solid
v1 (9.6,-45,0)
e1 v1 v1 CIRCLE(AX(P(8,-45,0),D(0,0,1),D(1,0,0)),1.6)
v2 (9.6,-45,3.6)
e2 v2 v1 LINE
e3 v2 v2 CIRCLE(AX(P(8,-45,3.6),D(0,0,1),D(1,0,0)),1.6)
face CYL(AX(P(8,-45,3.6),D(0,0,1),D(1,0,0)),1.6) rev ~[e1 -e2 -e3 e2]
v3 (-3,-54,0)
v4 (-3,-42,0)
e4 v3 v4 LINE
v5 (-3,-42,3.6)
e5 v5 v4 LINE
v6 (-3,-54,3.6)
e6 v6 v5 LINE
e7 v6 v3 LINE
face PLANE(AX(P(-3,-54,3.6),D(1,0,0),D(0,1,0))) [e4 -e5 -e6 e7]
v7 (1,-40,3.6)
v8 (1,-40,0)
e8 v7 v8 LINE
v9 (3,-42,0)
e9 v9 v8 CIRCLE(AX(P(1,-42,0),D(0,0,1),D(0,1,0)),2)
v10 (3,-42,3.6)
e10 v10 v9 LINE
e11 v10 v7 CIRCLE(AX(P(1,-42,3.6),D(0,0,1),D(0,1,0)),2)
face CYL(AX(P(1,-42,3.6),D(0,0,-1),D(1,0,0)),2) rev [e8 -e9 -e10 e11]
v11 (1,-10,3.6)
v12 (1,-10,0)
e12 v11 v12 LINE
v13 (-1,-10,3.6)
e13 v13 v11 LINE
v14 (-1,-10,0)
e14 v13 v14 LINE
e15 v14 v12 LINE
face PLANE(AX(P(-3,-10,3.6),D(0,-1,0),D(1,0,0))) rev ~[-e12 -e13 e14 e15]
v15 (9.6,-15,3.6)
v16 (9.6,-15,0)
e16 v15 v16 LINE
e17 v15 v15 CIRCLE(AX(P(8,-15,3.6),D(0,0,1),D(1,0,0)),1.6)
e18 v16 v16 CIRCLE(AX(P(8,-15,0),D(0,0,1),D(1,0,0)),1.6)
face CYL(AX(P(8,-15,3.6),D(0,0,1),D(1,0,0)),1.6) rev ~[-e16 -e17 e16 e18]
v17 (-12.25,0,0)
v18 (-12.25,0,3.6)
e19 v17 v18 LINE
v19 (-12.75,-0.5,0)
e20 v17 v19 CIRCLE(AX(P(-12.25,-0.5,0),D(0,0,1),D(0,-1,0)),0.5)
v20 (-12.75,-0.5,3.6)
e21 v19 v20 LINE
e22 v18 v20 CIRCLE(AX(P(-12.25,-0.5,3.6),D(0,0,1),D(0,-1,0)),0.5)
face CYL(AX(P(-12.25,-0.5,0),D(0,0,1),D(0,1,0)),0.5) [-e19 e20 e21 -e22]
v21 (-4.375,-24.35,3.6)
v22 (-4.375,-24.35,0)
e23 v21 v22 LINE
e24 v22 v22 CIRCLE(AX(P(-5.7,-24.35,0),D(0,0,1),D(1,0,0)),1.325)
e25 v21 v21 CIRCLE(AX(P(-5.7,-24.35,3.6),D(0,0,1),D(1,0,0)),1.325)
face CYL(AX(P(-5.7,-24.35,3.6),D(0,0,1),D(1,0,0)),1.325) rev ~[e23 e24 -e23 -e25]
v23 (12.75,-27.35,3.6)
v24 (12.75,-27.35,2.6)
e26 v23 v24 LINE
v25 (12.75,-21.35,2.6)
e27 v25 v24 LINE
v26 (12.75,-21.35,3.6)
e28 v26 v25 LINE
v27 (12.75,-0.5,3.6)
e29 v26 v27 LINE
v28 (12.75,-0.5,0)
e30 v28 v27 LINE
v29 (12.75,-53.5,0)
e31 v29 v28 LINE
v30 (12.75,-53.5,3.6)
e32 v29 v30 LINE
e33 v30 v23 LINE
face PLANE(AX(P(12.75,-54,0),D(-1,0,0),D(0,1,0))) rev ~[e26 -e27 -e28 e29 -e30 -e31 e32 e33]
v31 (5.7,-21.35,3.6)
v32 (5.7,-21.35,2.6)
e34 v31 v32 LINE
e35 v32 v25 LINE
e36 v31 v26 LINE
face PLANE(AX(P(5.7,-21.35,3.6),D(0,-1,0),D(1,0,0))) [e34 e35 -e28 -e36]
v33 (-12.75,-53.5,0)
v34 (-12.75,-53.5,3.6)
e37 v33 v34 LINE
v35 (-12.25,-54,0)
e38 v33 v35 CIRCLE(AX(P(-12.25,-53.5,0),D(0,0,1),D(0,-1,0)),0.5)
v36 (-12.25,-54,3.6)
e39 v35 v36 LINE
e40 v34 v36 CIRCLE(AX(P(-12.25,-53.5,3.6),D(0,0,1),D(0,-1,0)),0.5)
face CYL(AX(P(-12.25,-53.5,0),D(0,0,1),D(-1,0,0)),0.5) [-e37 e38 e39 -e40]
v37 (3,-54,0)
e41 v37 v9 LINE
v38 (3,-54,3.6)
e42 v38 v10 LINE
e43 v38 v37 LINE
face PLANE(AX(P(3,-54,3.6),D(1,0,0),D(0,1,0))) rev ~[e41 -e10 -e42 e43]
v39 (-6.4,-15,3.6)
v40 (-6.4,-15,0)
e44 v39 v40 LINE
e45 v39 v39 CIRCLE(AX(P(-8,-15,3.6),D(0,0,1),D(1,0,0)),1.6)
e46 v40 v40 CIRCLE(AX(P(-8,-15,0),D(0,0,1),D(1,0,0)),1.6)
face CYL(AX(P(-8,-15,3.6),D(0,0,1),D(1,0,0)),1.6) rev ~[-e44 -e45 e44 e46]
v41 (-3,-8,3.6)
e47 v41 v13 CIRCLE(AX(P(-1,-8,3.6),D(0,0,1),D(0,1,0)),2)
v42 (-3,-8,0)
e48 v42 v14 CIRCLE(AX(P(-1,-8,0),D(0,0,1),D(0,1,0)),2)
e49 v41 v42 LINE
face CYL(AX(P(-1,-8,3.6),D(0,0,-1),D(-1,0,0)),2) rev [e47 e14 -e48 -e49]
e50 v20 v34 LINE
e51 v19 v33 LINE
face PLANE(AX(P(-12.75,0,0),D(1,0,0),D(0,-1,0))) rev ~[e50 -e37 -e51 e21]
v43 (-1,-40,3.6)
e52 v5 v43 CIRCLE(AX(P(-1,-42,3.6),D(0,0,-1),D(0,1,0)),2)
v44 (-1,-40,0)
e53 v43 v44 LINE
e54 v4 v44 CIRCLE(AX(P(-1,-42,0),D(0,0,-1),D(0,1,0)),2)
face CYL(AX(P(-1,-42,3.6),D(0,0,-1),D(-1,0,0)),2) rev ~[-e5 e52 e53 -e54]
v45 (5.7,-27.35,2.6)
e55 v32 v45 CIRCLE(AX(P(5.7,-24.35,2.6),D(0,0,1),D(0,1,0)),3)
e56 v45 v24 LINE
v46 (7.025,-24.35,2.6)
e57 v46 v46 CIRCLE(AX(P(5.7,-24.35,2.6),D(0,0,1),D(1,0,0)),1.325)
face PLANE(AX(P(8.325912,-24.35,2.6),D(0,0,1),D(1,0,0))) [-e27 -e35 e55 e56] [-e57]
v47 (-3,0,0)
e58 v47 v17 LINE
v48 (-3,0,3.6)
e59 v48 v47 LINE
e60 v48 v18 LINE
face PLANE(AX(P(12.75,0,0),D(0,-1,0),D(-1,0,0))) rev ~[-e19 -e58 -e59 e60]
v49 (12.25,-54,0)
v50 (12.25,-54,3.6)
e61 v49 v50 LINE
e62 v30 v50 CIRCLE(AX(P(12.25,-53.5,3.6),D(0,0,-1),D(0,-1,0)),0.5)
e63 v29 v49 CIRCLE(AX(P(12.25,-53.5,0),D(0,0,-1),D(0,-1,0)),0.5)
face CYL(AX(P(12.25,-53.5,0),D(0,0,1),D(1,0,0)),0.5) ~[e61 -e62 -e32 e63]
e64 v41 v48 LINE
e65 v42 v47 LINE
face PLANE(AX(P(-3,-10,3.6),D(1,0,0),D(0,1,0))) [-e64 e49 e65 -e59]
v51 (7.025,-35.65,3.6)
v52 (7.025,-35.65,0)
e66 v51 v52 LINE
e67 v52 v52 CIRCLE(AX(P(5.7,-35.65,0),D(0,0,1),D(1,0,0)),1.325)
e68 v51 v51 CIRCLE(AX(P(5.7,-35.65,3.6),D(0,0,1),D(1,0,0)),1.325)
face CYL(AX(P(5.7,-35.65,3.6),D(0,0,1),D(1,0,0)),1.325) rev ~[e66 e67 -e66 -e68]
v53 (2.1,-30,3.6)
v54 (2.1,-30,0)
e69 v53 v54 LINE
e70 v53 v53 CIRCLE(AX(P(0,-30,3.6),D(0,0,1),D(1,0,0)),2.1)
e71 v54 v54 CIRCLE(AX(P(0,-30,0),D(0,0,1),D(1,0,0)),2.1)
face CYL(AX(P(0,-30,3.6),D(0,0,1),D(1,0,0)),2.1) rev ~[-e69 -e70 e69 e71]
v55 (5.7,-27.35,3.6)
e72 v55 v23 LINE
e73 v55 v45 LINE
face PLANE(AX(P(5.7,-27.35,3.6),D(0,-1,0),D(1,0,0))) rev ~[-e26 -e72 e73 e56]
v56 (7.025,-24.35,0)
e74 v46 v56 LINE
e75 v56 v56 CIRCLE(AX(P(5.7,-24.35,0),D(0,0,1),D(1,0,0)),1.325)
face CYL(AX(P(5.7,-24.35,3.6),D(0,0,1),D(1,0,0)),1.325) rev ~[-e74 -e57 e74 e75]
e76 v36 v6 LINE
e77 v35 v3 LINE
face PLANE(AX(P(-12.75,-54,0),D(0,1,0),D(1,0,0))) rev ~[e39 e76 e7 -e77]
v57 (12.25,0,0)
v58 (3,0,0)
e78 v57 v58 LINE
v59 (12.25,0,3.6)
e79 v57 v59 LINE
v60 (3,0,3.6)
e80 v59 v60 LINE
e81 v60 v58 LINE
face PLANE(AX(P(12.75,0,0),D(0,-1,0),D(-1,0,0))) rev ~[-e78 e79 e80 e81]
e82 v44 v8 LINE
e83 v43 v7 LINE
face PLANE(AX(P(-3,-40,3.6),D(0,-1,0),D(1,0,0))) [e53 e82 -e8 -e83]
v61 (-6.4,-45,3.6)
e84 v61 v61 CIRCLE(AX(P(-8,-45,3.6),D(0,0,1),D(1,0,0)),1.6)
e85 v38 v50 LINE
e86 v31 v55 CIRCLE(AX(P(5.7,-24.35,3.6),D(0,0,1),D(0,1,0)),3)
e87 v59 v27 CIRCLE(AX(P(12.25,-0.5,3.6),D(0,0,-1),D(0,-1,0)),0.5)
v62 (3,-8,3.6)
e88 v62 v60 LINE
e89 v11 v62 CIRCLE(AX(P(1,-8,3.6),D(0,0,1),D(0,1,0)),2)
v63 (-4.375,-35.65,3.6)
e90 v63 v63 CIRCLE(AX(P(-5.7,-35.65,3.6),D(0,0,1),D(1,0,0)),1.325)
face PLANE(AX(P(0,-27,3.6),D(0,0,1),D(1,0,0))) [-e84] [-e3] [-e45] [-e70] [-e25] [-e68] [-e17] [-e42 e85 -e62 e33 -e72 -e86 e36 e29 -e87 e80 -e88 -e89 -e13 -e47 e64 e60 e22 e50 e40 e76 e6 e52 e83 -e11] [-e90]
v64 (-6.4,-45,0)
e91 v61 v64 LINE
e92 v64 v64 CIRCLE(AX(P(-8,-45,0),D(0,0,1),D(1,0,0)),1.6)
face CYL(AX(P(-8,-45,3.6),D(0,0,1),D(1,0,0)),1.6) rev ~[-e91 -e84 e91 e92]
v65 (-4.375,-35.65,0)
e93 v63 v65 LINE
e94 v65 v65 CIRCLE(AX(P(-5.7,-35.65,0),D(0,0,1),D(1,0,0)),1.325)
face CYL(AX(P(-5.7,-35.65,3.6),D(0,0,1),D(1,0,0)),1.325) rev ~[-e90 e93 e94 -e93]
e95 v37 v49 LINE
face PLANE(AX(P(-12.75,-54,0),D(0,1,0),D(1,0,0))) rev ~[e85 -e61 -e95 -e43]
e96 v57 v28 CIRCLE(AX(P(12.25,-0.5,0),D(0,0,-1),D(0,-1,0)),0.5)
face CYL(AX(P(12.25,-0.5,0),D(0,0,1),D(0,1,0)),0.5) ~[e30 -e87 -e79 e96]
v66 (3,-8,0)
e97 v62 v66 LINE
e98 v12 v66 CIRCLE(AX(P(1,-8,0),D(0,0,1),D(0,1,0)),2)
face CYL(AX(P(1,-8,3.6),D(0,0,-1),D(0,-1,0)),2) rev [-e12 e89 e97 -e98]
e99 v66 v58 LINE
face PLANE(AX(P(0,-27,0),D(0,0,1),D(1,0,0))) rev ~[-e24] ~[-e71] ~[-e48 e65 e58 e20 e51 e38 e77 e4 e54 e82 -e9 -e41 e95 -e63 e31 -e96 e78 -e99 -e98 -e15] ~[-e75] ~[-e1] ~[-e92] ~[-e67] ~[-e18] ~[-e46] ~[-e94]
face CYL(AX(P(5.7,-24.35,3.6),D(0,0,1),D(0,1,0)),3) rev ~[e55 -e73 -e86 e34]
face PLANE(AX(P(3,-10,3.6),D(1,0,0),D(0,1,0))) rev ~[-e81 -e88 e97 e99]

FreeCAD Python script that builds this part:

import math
import FreeCAD as App
import Part
import Sketcher


def edges_at(feature, points):
    """Names of the edges that pass closest to the given points."""
    edges = feature.Shape.Edges
    near = lambda p: min(range(len(edges)), key=lambda i: edges[i].distToShape(Part.Vertex(*p))[0])
    return sorted({f"Edge{near(p) + 1}" for p in points})

doc = App.newDocument("Part")
params = doc.addObject("Spreadsheet::Sheet", "Params")
for row, (alias, value) in enumerate([
    ("sketch1_height", "54 mm"),
    ("sketch1_width", "25.5 mm"),
    ("pad1_length", "3.6 mm"),
    ("sketch2_width", "6 mm"),
    ("sketch2_height", "14 mm"),
    ("sketch2_height2", "10 mm"),
    ("pocket1_length", "5 mm"),
    ("fillet_radius", "2 mm"),
    ("sketch3_diameter", "4.2 mm"),
    ("pocket2_length", "5 mm"),
    ("sketch4_diameter", "2.65 mm"),
    ("pocket3_length", "5 mm"),
    ("sketch5_diameter", "3.2 mm"),
    ("pocket4_length", "25 mm"),
    ("fillet2_radius", "0.5 mm"),
    ("sketch6_radius", "3 mm"),
    ("sketch6_width", "7.05 mm"),
    ("pocket5_length", "1 mm"),
], start=1):
    params.set(f"A{row}", alias)
    params.set(f"B{row}", "=" + value)
    params.setAlias(f"B{row}", alias)

body = doc.addObject("PartDesign::Body", "Body")

# Sketch on XY plane
sketch1 = doc.addObject("Sketcher::SketchObject", "Sketch")
body.addObject(sketch1)
sketch1.AttachmentSupport = (doc.XY_Plane, [""])
sketch1.MapMode = "FlatFace"
sketch1.addGeometry(Part.LineSegment(App.Vector(-12.75, 0, 0), App.Vector(-12.75, -54, 0)), False)
sketch1.addGeometry(Part.LineSegment(App.Vector(-12.75, -54, 0), App.Vector(12.75, -54, 0)), False)
sketch1.addGeometry(Part.LineSegment(App.Vector(12.75, -54, 0), App.Vector(12.75, 0, 0)), False)
sketch1.addGeometry(Part.LineSegment(App.Vector(12.75, 0, 0), App.Vector(-12.75, 0, 0)), False)
sketch1.addConstraint(Sketcher.Constraint("Coincident", 0, 2, 1, 1))
sketch1.addConstraint(Sketcher.Constraint("Coincident", 1, 2, 2, 1))
sketch1.addConstraint(Sketcher.Constraint("Coincident", 2, 2, 3, 1))
sketch1.addConstraint(Sketcher.Constraint("Coincident", 3, 2, 0, 1))
sketch1.addConstraint(Sketcher.Constraint("Vertical", 0))
sketch1.addConstraint(Sketcher.Constraint("Horizontal", 1))
sketch1.addConstraint(Sketcher.Constraint("Vertical", 2))
sketch1.addConstraint(Sketcher.Constraint("Horizontal", 3))
sketch1.addConstraint(Sketcher.Constraint("Symmetric", 2, 2, 3, 2, -1, 1))
sketch1.addConstraint(Sketcher.Constraint("DistanceY", 0, 2, 0, 1, 54.0))
sketch1.addConstraint(Sketcher.Constraint("DistanceX", 1, 1, 1, 2, 25.5))
sketch1.setExpression("Constraints[9]", "Params.sketch1_height")
sketch1.setExpression("Constraints[10]", "Params.sketch1_width")
pad1 = doc.addObject("PartDesign::Pad", "Pad")
body.addObject(pad1)
pad1.Profile = sketch1
pad1.setExpression("Length", "Params.pad1_length")

# Sketch on XY plane
sketch2 = doc.addObject("Sketcher::SketchObject", "Sketch001")
body.addObject(sketch2)
sketch2.AttachmentSupport = (doc.XY_Plane, [""])
sketch2.MapMode = "FlatFace"
sketch2.AttachmentOffset = App.Placement(App.Vector(0, 0, 3.6), App.Rotation())
sketch2.addGeometry(Part.LineSegment(App.Vector(-3, -40, 0), App.Vector(-3, -54, 0)), False)
sketch2.addGeometry(Part.LineSegment(App.Vector(-3, -54, 0), App.Vector(3, -54, 0)), False)
sketch2.addGeometry(Part.LineSegment(App.Vector(3, -54, 0), App.Vector(3, -40, 0)), False)
sketch2.addGeometry(Part.LineSegment(App.Vector(3, -40, 0), App.Vector(-3, -40, 0)), False)
sketch2.addGeometry(Part.LineSegment(App.Vector(-3, 0, 0), App.Vector(-3, -10, 0)), False)
sketch2.addGeometry(Part.LineSegment(App.Vector(-3, -10, 0), App.Vector(3, -10, 0)), False)
sketch2.addGeometry(Part.LineSegment(App.Vector(3, -10, 0), App.Vector(3, 0, 0)), False)
sketch2.addGeometry(Part.LineSegment(App.Vector(3, 0, 0), App.Vector(-3, 0, 0)), False)
sketch2.addConstraint(Sketcher.Constraint("Coincident", 0, 2, 1, 1))
sketch2.addConstraint(Sketcher.Constraint("Coincident", 1, 2, 2, 1))
sketch2.addConstraint(Sketcher.Constraint("Coincident", 2, 2, 3, 1))
sketch2.addConstraint(Sketcher.Constraint("Coincident", 3, 2, 0, 1))
sketch2.addConstraint(Sketcher.Constraint("Coincident", 4, 2, 5, 1))
sketch2.addConstraint(Sketcher.Constraint("Coincident", 5, 2, 6, 1))
sketch2.addConstraint(Sketcher.Constraint("Coincident", 6, 2, 7, 1))
sketch2.addConstraint(Sketcher.Constraint("Coincident", 7, 2, 4, 1))
sketch2.addConstraint(Sketcher.Constraint("Vertical", 0))
sketch2.addConstraint(Sketcher.Constraint("Horizontal", 1))
sketch2.addConstraint(Sketcher.Constraint("Vertical", 2))
sketch2.addConstraint(Sketcher.Constraint("Horizontal", 3))
sketch2.addConstraint(Sketcher.Constraint("Vertical", 4))
sketch2.addConstraint(Sketcher.Constraint("Horizontal", 5))
sketch2.addConstraint(Sketcher.Constraint("Vertical", 6))
sketch2.addConstraint(Sketcher.Constraint("Horizontal", 7))
sketch2.addConstraint(Sketcher.Constraint("Symmetric", 6, 2, 7, 2, -1, 1))
sketch2.addConstraint(Sketcher.Constraint("Vertical", 3, 2, 4, 2))
sketch2.addConstraint(Sketcher.Constraint("Vertical", 2, 2, 5, 2))
sketch2.addConstraint(Sketcher.Constraint("DistanceX", 1, 1, 1, 2, 6.0))
sketch2.addConstraint(Sketcher.Constraint("DistanceY", 0, 2, 0, 1, 14.0))
sketch2.addConstraint(Sketcher.Constraint("DistanceY", 4, 2, 4, 1, 10.0))
sketch2.addConstraint(Sketcher.Constraint("DistanceY", 0, 2, -1, 1, 54.0))
sketch2.setExpression("Constraints[19]", "Params.sketch2_width")
sketch2.setExpression("Constraints[20]", "Params.sketch2_height")
sketch2.setExpression("Constraints[21]", "Params.sketch2_height2")
pocket1 = doc.addObject("PartDesign::Pocket", "Pocket")
body.addObject(pocket1)
pocket1.Profile = sketch2
pocket1.setExpression("Length", "Params.pocket1_length")
doc.recompute()

fillet = doc.addObject("PartDesign::Fillet", "Fillet")
body.addObject(fillet)
fillet.Base = (pocket1, edges_at(pocket1, [
    (-3, -10, 1.8),
    (3, -10, 1.8),
    (3, -40, 1.8),
    (-3, -40, 1.8),
]))
fillet.setExpression("Radius", "Params.fillet_radius")

# Sketch on XY plane
sketch3 = doc.addObject("Sketcher::SketchObject", "Sketch002")
body.addObject(sketch3)
sketch3.AttachmentSupport = (doc.XY_Plane, [""])
sketch3.MapMode = "FlatFace"
sketch3.AttachmentOffset = App.Placement(App.Vector(0, 0, 3.6), App.Rotation())
sketch3.addGeometry(Part.Circle(App.Vector(0, -30, 0), App.Vector(0, 0, 1), 2.1), False)
sketch3.addConstraint(Sketcher.Constraint("PointOnObject", 0, 3, -2))
sketch3.addConstraint(Sketcher.Constraint("Diameter", 0, 4.2))
sketch3.addConstraint(Sketcher.Constraint("DistanceY", 0, 3, -1, 1, 30.0))
sketch3.setExpression("Constraints[1]", "Params.sketch3_diameter")
pocket2 = doc.addObject("PartDesign::Pocket", "Pocket001")
body.addObject(pocket2)
pocket2.Profile = sketch3
pocket2.setExpression("Length", "Params.pocket2_length")

# Sketch on XY plane
sketch4 = doc.addObject("Sketcher::SketchObject", "Sketch003")
body.addObject(sketch4)
sketch4.AttachmentSupport = (doc.XY_Plane, [""])
sketch4.MapMode = "FlatFace"
sketch4.AttachmentOffset = App.Placement(App.Vector(0, 0, 3.6), App.Rotation())
sketch4.addGeometry(Part.Circle(App.Vector(-5.7, -24.35, 0), App.Vector(0, 0, 1), 1.325), False)
sketch4.addGeometry(Part.Circle(App.Vector(5.7, -24.35, 0), App.Vector(0, 0, 1), 1.325), False)
sketch4.addGeometry(Part.Circle(App.Vector(5.7, -35.65, 0), App.Vector(0, 0, 1), 1.325), False)
sketch4.addGeometry(Part.Circle(App.Vector(-5.7, -35.65, 0), App.Vector(0, 0, 1), 1.325), False)
sketch4.addConstraint(Sketcher.Constraint("Equal", 0, 1))
sketch4.addConstraint(Sketcher.Constraint("Equal", 1, 2))
sketch4.addConstraint(Sketcher.Constraint("Equal", 2, 3))
sketch4.addConstraint(Sketcher.Constraint("Symmetric", 0, 3, 1, 3, -2))
sketch4.addConstraint(Sketcher.Constraint("Symmetric", 2, 3, 3, 3, -2))
sketch4.addConstraint(Sketcher.Constraint("Vertical", 1, 3, 2, 3))
sketch4.addConstraint(Sketcher.Constraint("Diameter", 0, 2.65))
sketch4.addConstraint(Sketcher.Constraint("DistanceX", 0, 3, -1, 1, 5.7))
sketch4.addConstraint(Sketcher.Constraint("DistanceY", 2, 3, 1, 3, 11.3))
sketch4.addConstraint(Sketcher.Constraint("DistanceY", 0, 3, -1, 1, 24.35))
sketch4.setExpression("Constraints[6]", "Params.sketch4_diameter")
pocket3 = doc.addObject("PartDesign::Pocket", "Pocket002")
body.addObject(pocket3)
pocket3.Profile = sketch4
pocket3.setExpression("Length", "Params.pocket3_length")

# Sketch on XY plane
sketch5 = doc.addObject("Sketcher::SketchObject", "Sketch004")
body.addObject(sketch5)
sketch5.AttachmentSupport = (doc.XY_Plane, [""])
sketch5.MapMode = "FlatFace"
sketch5.AttachmentOffset = App.Placement(App.Vector(0, 0, 3.6), App.Rotation())
sketch5.addGeometry(Part.Circle(App.Vector(-8, -15, 0), App.Vector(0, 0, 1), 1.6), False)
sketch5.addGeometry(Part.Circle(App.Vector(8, -15, 0), App.Vector(0, 0, 1), 1.6), False)
sketch5.addGeometry(Part.Circle(App.Vector(-8, -45, 0), App.Vector(0, 0, 1), 1.6), False)
sketch5.addGeometry(Part.Circle(App.Vector(8, -45, 0), App.Vector(0, 0, 1), 1.6), False)
sketch5.addConstraint(Sketcher.Constraint("Equal", 0, 1))
sketch5.addConstraint(Sketcher.Constraint("Equal", 1, 2))
sketch5.addConstraint(Sketcher.Constraint("Equal", 2, 3))
sketch5.addConstraint(Sketcher.Constraint("Symmetric", 0, 3, 1, 3, -2))
sketch5.addConstraint(Sketcher.Constraint("Symmetric", 2, 3, 3, 3, -2))
sketch5.addConstraint(Sketcher.Constraint("Vertical", 0, 3, 2, 3))
sketch5.addConstraint(Sketcher.Constraint("Diameter", 0, 3.2))
sketch5.addConstraint(Sketcher.Constraint("DistanceX", 0, 3, -1, 1, 8.0))
sketch5.addConstraint(Sketcher.Constraint("DistanceY", 0, 3, -1, 1, 15.0))
sketch5.addConstraint(Sketcher.Constraint("DistanceY", 2, 3, -1, 1, 45.0))
sketch5.setExpression("Constraints[6]", "Params.sketch5_diameter")
pocket4 = doc.addObject("PartDesign::Pocket", "Pocket003")
body.addObject(pocket4)
pocket4.Profile = sketch5
pocket4.setExpression("Length", "Params.pocket4_length")
doc.recompute()

fillet2 = doc.addObject("PartDesign::Fillet", "Fillet001")
body.addObject(fillet2)
fillet2.Base = (pocket4, edges_at(pocket4, [
    (-12.75, 0, 1.8),
    (-12.75, -54, 1.8),
    (12.75, 0, 1.8),
    (12.75, -54, 1.8),
]))
fillet2.setExpression("Radius", "Params.fillet2_radius")

# Sketch on XY plane
sketch6 = doc.addObject("Sketcher::SketchObject", "Sketch005")
body.addObject(sketch6)
sketch6.AttachmentSupport = (doc.XY_Plane, [""])
sketch6.MapMode = "FlatFace"
sketch6.AttachmentOffset = App.Placement(App.Vector(0, 0, 3.6), App.Rotation())
sketch6.addGeometry(Part.ArcOfCircle(Part.Circle(App.Vector(5.7, -24.35, 0), App.Vector(0, 0, 1), 3), math.radians(90), math.radians(270)), False)
sketch6.addGeometry(Part.LineSegment(App.Vector(5.7, -27.35, 0), App.Vector(12.75, -27.35, 0)), False)
sketch6.addGeometry(Part.LineSegment(App.Vector(12.75, -27.35, 0), App.Vector(12.75, -21.35, 0)), False)
sketch6.addGeometry(Part.LineSegment(App.Vector(12.75, -21.35, 0), App.Vector(5.7, -21.35, 0)), False)
sketch6.addConstraint(Sketcher.Constraint("Tangent", 0, 2, 1, 1))
sketch6.addConstraint(Sketcher.Constraint("Coincident", 1, 2, 2, 1))
sketch6.addConstraint(Sketcher.Constraint("Coincident", 2, 2, 3, 1))
sketch6.addConstraint(Sketcher.Constraint("Tangent", 3, 2, 0, 1))
sketch6.addConstraint(Sketcher.Constraint("Horizontal", 1))
sketch6.addConstraint(Sketcher.Constraint("Vertical", 2))
sketch6.addConstraint(Sketcher.Constraint("Horizontal", 3))
sketch6.addConstraint(Sketcher.Constraint("Radius", 0, 3.0))
sketch6.addConstraint(Sketcher.Constraint("DistanceX", 1, 1, 1, 2, 7.05))
sketch6.addConstraint(Sketcher.Constraint("DistanceX", -1, 1, 0, 3, 5.7))
sketch6.addConstraint(Sketcher.Constraint("DistanceY", 0, 3, -1, 1, 24.35))
sketch6.setExpression("Constraints[7]", "Params.sketch6_radius")
sketch6.setExpression("Constraints[8]", "Params.sketch6_width")
pocket5 = doc.addObject("PartDesign::Pocket", "Pocket004")
body.addObject(pocket5)
pocket5.Profile = sketch6
pocket5.setExpression("Length", "Params.pocket5_length")

doc.recompute()
